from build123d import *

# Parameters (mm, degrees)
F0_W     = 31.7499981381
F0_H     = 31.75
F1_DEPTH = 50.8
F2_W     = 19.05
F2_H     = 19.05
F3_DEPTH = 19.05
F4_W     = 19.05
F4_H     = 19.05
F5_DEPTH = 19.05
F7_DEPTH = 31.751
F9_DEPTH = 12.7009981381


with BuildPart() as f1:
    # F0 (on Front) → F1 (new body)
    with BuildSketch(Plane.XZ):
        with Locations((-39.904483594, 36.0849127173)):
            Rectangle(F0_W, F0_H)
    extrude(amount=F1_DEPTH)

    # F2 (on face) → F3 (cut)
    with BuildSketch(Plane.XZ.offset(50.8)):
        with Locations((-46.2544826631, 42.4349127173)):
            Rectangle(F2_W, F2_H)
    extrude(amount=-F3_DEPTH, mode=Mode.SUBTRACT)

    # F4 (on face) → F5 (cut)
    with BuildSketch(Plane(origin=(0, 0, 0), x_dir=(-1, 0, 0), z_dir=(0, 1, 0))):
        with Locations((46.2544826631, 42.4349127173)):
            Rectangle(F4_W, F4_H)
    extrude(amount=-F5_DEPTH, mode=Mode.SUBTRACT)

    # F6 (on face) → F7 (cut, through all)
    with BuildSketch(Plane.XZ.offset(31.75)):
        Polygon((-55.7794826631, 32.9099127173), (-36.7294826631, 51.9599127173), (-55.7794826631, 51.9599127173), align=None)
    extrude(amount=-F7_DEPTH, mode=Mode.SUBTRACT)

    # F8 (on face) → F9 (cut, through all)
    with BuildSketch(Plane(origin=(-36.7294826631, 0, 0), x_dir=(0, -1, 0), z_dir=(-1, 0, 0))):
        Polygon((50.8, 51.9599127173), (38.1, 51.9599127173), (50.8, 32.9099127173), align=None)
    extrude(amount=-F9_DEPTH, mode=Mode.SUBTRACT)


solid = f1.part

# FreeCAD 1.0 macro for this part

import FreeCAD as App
import Part
import Sketcher

V = App.Vector
Q = App.Units.Quantity


def add_polygon(sketch, points):
    """Adds a closed chain of lines whose ends are joined by coincident constraints."""
    first, n = sketch.GeometryCount, len(points)
    for a, b in zip(points, points[1:] + points[:1]):
        sketch.addGeometry(Part.LineSegment(App.Vector(*a, 0), App.Vector(*b, 0)), False)
    for i in range(n):
        sketch.addConstraint(Sketcher.Constraint("Coincident", first + i, 2, first + (i + 1) % n, 1))

doc = App.newDocument("Part")
body = doc.addObject("PartDesign::Body", "Body")

sketch1 = doc.addObject("Sketcher::SketchObject", "Sketch")
body.addObject(sketch1)
sketch1.AttachmentSupport = (doc.XZ_Plane, [""])
sketch1.MapMode = "FlatFace"
add_polygon(sketch1, [(-55.779483, 51.959913), (-55.779483, 20.209913), (-24.029485, 20.209913), (-24.029485, 51.959913)])
sketch1.addConstraint(Sketcher.Constraint("Vertical", 0))
sketch1.addConstraint(Sketcher.Constraint("Horizontal", 1))
sketch1.addConstraint(Sketcher.Constraint("Vertical", 2))
sketch1.addConstraint(Sketcher.Constraint("Horizontal", 3))
sketch1.addConstraint(Sketcher.Constraint("Equal", 3, 0))
sketch1.addConstraint(Sketcher.Constraint("DistanceX", 1, 1, 1, 2, Q("1.2499999 in")))
sketch1.addConstraint(Sketcher.Constraint("DistanceX", 0, 2, -1, 1, Q("55.779483 mm")))
sketch1.addConstraint(Sketcher.Constraint("DistanceY", -1, 1, 0, 2, Q("20.209913 mm")))
pad1 = doc.addObject("PartDesign::Pad", "Pad")
body.addObject(pad1)
pad1.Profile = sketch1
pad1.Length = Q("2 in")

sketch2 = doc.addObject("Sketcher::SketchObject", "Sketch001")
body.addObject(sketch2)
sketch2.AttachmentSupport = (doc.XZ_Plane, [""])
sketch2.MapMode = "FlatFace"
sketch2.AttachmentOffset = App.Placement(V(0, 0, 2 * 25.4), App.Rotation())
add_polygon(sketch2, [(-55.779483, 51.959913), (-55.779483, 32.909913), (-36.729483, 32.909913), (-36.729483, 51.959913)])
sketch2.addConstraint(Sketcher.Constraint("Vertical", 0))
sketch2.addConstraint(Sketcher.Constraint("Horizontal", 1))
sketch2.addConstraint(Sketcher.Constraint("Vertical", 2))
sketch2.addConstraint(Sketcher.Constraint("Horizontal", 3))
sketch2.addConstraint(Sketcher.Constraint("Equal", 3, 0))
sketch2.addConstraint(Sketcher.Constraint("DistanceX", 1, 1, 1, 2, Q("0.75 in")))
sketch2.addConstraint(Sketcher.Constraint("DistanceX", 0, 2, -1, 1, Q("55.779483 mm")))
sketch2.addConstraint(Sketcher.Constraint("DistanceY", -1, 1, 0, 2, Q("32.909913 mm")))
pocket1 = doc.addObject("PartDesign::Pocket", "Pocket")
body.addObject(pocket1)
pocket1.Profile = sketch2
pocket1.Length = Q("0.75 in")

sketch3 = doc.addObject("Sketcher::SketchObject", "Sketch002")
body.addObject(sketch3)
sketch3.AttachmentSupport = (doc.XZ_Plane, [""])
sketch3.MapMode = "FlatFace"
add_polygon(sketch3, [(-36.729483, 51.959913), (-36.729483, 32.909913), (-55.779483, 32.909913), (-55.779483, 51.959913)])
sketch3.addConstraint(Sketcher.Constraint("Vertical", 0))
sketch3.addConstraint(Sketcher.Constraint("Horizontal", 1))
sketch3.addConstraint(Sketcher.Constraint("Vertical", 2))
sketch3.addConstraint(Sketcher.Constraint("Horizontal", 3))
sketch3.addConstraint(Sketcher.Constraint("Equal", 3, 0))
sketch3.addConstraint(Sketcher.Constraint("DistanceX", 1, 2, 1, 1, Q("0.75 in")))
sketch3.addConstraint(Sketcher.Constraint("DistanceX", 0, 2, -1, 1, Q("36.729483 mm")))
sketch3.addConstraint(Sketcher.Constraint("DistanceY", -1, 1, 0, 2, Q("32.909913 mm")))
pocket2 = doc.addObject("PartDesign::Pocket", "Pocket001")
body.addObject(pocket2)
pocket2.Profile = sketch3
pocket2.Length = Q("0.75 in")
pocket2.Reversed = True

sketch4 = doc.addObject("Sketcher::SketchObject", "Sketch003")
body.addObject(sketch4)
sketch4.AttachmentSupport = (doc.XZ_Plane, [""])
sketch4.MapMode = "FlatFace"
sketch4.AttachmentOffset = App.Placement(V(0, 0, 1.25 * 25.4), App.Rotation())
add_polygon(sketch4, [(-55.779483, 32.909913), (-36.729483, 51.959913), (-55.779483, 51.959913)])
sketch4.addConstraint(Sketcher.Constraint("Horizontal", 1))
sketch4.addConstraint(Sketcher.Constraint("Vertical", 2))
sketch4.addConstraint(Sketcher.Constraint("Equal", 1, 2))
sketch4.addConstraint(Sketcher.Constraint("DistanceX", 1, 2, 1, 1, Q("0.75 in")))
sketch4.addConstraint(Sketcher.Constraint("DistanceX", 0, 2, -1, 1, Q("36.729483 mm")))
sketch4.addConstraint(Sketcher.Constraint("DistanceY", -1, 1, 0, 2, Q("51.959913 mm")))
pocket3 = doc.addObject("PartDesign::Pocket", "Pocket002")
body.addObject(pocket3)
pocket3.Profile = sketch4
pocket3.Type = "ThroughAll"

sketch5 = doc.addObject("Sketcher::SketchObject", "Sketch004")
body.addObject(sketch5)
sketch5.AttachmentSupport = (doc.YZ_Plane, [""])
sketch5.MapMode = "FlatFace"
sketch5.AttachmentOffset = App.Placement(V(0, 0, -36.729483), App.Rotation())
add_polygon(sketch5, [(-50.8, 51.959913), (-38.1, 51.959913), (-50.8, 32.909913)])
sketch5.addConstraint(Sketcher.Constraint("Horizontal", 0))
sketch5.addConstraint(Sketcher.Constraint("Vertical", 2))
sketch5.addConstraint(Sketcher.Constraint("DistanceX", 0, 1, 0, 2, Q("0.5 in")))
sketch5.addConstraint(Sketcher.Constraint("DistanceX", 1, 2, -1, 1, Q("2 in")))
sketch5.addConstraint(Sketcher.Constraint("DistanceY", 2, 1, 2, 2, Q("0.75 in")))
sketch5.addConstraint(Sketcher.Constraint("DistanceY", -1, 1, 0, 2, Q("51.959913 mm")))
pocket4 = doc.addObject("PartDesign::Pocket", "Pocket003")
body.addObject(pocket4)
pocket4.Profile = sketch5
pocket4.Type = "ThroughAll"
pocket4.Reversed = True

doc.recompute()
